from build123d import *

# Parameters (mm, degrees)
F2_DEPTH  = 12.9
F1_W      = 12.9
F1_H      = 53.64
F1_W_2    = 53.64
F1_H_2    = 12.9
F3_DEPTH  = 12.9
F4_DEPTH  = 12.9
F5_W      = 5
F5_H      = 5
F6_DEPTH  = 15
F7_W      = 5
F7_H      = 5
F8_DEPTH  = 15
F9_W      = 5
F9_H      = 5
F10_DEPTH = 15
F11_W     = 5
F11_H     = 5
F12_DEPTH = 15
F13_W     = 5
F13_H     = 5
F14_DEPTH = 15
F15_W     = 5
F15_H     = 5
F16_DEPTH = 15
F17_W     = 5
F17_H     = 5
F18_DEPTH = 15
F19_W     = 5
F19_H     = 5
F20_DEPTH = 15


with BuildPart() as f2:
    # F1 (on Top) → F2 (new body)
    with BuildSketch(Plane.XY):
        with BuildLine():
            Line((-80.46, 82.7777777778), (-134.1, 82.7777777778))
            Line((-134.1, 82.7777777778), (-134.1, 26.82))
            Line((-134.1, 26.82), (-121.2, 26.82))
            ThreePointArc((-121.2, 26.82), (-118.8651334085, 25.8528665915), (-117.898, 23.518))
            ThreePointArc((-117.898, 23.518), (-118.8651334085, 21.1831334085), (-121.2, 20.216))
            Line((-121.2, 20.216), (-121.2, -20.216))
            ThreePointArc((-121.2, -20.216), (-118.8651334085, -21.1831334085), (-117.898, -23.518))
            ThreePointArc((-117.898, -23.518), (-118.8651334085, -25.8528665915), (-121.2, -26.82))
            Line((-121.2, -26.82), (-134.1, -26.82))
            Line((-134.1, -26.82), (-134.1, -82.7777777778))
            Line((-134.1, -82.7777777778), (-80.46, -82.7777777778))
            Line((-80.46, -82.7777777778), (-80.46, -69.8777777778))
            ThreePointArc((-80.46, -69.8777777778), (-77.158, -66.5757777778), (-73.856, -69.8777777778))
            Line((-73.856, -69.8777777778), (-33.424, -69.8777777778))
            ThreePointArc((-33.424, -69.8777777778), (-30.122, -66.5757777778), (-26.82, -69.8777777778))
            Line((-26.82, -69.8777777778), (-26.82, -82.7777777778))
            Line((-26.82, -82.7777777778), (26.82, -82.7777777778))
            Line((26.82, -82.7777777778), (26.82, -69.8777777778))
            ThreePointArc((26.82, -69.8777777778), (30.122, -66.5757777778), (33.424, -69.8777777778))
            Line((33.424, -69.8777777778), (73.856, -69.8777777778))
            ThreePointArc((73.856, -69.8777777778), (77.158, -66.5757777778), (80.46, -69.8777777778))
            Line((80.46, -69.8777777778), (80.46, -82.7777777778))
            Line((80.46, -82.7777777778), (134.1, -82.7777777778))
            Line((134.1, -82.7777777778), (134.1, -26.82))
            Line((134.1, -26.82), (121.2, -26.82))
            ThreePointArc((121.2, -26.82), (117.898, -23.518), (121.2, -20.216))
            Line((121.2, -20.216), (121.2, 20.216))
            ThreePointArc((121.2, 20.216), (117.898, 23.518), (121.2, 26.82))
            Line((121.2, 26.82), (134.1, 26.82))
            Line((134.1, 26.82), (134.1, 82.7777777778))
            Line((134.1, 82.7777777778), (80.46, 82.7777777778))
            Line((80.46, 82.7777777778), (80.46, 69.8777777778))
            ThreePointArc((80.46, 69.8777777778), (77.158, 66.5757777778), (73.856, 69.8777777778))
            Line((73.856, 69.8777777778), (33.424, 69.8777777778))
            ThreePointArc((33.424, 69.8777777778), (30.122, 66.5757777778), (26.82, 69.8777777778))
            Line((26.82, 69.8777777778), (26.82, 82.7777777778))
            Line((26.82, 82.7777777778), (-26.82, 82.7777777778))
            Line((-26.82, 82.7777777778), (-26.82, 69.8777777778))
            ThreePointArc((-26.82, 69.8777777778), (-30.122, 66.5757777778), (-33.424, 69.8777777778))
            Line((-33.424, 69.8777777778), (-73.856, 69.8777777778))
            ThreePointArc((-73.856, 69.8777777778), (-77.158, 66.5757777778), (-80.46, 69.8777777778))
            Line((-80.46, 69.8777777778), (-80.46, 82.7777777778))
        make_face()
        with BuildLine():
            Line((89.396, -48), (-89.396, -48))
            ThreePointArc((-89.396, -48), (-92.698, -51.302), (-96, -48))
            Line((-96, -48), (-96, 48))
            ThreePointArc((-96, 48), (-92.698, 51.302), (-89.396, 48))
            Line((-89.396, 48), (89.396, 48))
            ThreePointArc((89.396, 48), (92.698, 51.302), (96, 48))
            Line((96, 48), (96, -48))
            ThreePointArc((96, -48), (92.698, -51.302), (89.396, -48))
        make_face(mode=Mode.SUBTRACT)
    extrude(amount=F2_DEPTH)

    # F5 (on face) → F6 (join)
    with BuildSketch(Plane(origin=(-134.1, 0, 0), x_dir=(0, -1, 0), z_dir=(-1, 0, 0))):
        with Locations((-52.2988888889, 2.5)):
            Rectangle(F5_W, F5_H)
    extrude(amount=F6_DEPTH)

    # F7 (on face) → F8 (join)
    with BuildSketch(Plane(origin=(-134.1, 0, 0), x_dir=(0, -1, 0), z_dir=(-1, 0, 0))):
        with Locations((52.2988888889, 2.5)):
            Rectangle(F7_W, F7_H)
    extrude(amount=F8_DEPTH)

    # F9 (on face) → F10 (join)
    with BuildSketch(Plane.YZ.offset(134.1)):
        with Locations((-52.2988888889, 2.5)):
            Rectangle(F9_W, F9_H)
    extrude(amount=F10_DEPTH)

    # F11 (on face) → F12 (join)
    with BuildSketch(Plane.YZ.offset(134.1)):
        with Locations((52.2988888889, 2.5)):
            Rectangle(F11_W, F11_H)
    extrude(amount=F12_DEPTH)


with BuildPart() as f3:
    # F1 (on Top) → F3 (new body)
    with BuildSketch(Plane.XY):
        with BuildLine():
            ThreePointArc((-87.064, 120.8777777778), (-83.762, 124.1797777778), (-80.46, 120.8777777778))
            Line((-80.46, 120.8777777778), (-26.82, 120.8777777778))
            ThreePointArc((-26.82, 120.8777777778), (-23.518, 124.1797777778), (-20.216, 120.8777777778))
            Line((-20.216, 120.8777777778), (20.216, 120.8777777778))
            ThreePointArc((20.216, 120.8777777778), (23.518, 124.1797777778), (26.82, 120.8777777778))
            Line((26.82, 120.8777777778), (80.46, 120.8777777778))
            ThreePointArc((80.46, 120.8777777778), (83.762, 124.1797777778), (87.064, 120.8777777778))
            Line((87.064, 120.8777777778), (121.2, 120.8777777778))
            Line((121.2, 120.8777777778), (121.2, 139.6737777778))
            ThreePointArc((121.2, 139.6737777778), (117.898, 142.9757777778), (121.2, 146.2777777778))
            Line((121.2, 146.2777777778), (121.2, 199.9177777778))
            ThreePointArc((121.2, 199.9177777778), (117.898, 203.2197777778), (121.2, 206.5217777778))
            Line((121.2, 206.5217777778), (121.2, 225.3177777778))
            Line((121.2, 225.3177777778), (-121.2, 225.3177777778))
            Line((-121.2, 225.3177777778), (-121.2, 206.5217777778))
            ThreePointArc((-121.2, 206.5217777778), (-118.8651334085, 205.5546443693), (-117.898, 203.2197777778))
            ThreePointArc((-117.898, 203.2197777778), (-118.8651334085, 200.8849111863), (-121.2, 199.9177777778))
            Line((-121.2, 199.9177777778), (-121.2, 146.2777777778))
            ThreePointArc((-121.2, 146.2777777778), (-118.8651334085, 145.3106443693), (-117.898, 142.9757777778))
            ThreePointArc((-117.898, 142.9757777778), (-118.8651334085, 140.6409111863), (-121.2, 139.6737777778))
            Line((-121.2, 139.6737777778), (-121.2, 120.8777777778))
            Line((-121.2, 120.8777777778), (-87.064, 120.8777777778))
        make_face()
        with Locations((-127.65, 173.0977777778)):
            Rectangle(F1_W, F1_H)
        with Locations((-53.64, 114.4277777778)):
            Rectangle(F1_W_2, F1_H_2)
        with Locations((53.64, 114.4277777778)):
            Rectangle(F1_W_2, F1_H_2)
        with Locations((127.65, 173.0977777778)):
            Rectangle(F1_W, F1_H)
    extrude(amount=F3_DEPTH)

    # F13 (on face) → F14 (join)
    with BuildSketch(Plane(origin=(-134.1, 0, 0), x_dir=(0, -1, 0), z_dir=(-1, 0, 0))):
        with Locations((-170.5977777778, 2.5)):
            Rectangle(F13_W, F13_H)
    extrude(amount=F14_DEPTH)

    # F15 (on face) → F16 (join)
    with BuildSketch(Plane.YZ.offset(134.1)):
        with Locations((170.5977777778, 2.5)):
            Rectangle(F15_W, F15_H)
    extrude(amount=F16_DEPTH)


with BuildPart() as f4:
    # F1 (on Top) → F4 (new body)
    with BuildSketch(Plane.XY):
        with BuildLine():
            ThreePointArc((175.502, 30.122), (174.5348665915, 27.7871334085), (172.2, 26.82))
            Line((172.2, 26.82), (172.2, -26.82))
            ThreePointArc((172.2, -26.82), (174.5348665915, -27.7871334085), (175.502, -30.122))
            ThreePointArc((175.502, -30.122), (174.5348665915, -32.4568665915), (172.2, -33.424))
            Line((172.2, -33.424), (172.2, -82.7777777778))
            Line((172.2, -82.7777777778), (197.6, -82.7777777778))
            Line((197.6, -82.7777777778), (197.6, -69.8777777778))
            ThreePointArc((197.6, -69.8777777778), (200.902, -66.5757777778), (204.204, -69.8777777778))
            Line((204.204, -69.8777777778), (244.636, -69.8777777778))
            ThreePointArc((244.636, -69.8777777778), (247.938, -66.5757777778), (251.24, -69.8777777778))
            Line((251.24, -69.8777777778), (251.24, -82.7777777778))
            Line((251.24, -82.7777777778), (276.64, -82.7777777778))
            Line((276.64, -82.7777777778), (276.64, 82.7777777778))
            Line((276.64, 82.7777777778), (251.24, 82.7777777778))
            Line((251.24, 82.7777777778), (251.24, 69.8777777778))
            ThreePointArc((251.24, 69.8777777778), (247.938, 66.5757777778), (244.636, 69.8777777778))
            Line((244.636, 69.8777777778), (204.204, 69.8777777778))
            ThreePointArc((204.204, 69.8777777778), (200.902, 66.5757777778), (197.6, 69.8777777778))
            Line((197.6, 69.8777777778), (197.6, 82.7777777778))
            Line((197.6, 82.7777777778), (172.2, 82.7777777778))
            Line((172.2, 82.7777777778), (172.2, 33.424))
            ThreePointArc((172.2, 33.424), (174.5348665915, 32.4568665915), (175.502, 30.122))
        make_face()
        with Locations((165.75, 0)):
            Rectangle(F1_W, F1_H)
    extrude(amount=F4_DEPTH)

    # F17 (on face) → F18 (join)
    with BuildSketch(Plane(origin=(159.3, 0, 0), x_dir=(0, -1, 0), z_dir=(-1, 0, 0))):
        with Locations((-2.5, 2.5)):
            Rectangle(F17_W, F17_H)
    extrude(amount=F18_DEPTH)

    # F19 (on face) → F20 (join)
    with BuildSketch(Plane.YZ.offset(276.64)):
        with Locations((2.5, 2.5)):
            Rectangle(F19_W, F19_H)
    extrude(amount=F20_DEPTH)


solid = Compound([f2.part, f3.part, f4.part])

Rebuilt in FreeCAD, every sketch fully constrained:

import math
import FreeCAD as App
import Part
import Sketcher

V = App.Vector
Q = App.Units.Quantity


def add_polygon(sketch, points):
    """Adds a closed chain of lines whose ends are joined by coincident constraints."""
    first, n = sketch.GeometryCount, len(points)
    for a, b in zip(points, points[1:] + points[:1]):
        sketch.addGeometry(Part.LineSegment(App.Vector(*a, 0), App.Vector(*b, 0)), False)
    for i in range(n):
        sketch.addConstraint(Sketcher.Constraint("Coincident", first + i, 2, first + (i + 1) % n, 1))

doc = App.newDocument("Part")
params = doc.addObject("Spreadsheet::Sheet", "Params")
for row, (alias, value) in enumerate([
    ("sketch1_height", "96 mm"),
    ("sketch1_width", "12.9 mm"),
    ("sketch1_width2", "53.64 mm"),
    ("pad1_length", "12.9 mm"),
    ("sketch2_width", "5 mm"),
    ("pad2_length", "15 mm"),
    ("sketch3_width", "5 mm"),
    ("pad3_length", "15 mm"),
    ("sketch4_width", "5 mm"),
    ("pad4_length", "15 mm"),
    ("sketch5_width", "5 mm"),
    ("pad5_length", "15 mm"),
    ("sketch6_width", "12.9 mm"),
    ("sketch6_width2", "242.4 mm"),
    ("sketch6_width3", "53.64 mm"),
    ("pad6_length", "12.9 mm"),
    ("sketch7_width", "5 mm"),
    ("pad7_length", "15 mm"),
    ("sketch8_width", "5 mm"),
    ("pad8_length", "15 mm"),
    ("sketch9_width", "12.9 mm"),
    ("sketch9_width2", "25.4 mm"),
    ("sketch9_height", "53.64 mm"),
    ("pad9_length", "12.9 mm"),
    ("sketch10_width", "5 mm"),
    ("pad10_length", "15 mm"),
    ("sketch11_width", "5 mm"),
    ("pad11_length", "15 mm"),
], start=1):
    params.set(f"A{row}", alias)
    params.set(f"B{row}", "=" + value)
    params.setAlias(f"B{row}", alias)

body = doc.addObject("PartDesign::Body", "Body")

sketch1 = doc.addObject("Sketcher::SketchObject", "Sketch")
body.addObject(sketch1)
sketch1.AttachmentSupport = (doc.XY_Plane, [""])
sketch1.MapMode = "FlatFace"
sketch1.addGeometry([
    Part.LineSegment(V(-80.46, 82.777778, 0), V(-134.1, 82.777778, 0)),
    Part.LineSegment(V(-134.1, 82.777778, 0), V(-134.1, 26.82, 0)),
    Part.LineSegment(V(-134.1, 26.82, 0), V(-121.2, 26.82, 0)),
    Part.ArcOfCircle(Part.Circle(V(-121.2, 23.518, 0), V(0, 0, 1), 3.302), math.radians(0), math.radians(90)),
    Part.ArcOfCircle(Part.Circle(V(-121.2, 23.518, 0), V(0, 0, 1), 3.302), math.radians(-90), math.radians(0)),
    Part.LineSegment(V(-121.2, 20.216, 0), V(-121.2, -20.216, 0)),
    Part.ArcOfCircle(Part.Circle(V(-121.2, -23.518, 0), V(0, 0, 1), 3.302), math.radians(0), math.radians(90)),
    Part.ArcOfCircle(Part.Circle(V(-121.2, -23.518, 0), V(0, 0, 1), 3.302), math.radians(-90), math.radians(0)),
    Part.LineSegment(V(-121.2, -26.82, 0), V(-134.1, -26.82, 0)),
    Part.LineSegment(V(-134.1, -26.82, 0), V(-134.1, -82.777778, 0)),
    Part.LineSegment(V(-134.1, -82.777778, 0), V(-80.46, -82.777778, 0)),
    Part.LineSegment(V(-80.46, -82.777778, 0), V(-80.46, -69.877778, 0)),
    Part.ArcOfCircle(Part.Circle(V(-77.158, -69.877778, 0), V(0, 0, 1), 3.302), math.radians(0), math.radians(180)),
    Part.LineSegment(V(-73.856, -69.877778, 0), V(-33.424, -69.877778, 0)),
    Part.ArcOfCircle(Part.Circle(V(-30.122, -69.877778, 0), V(0, 0, 1), 3.302), math.radians(0), math.radians(180)),
    Part.LineSegment(V(-26.82, -69.877778, 0), V(-26.82, -82.777778, 0)),
    Part.LineSegment(V(-26.82, -82.777778, 0), V(26.82, -82.777778, 0)),
    Part.LineSegment(V(26.82, -82.777778, 0), V(26.82, -69.877778, 0)),
    Part.ArcOfCircle(Part.Circle(V(30.122, -69.877778, 0), V(0, 0, 1), 3.302), math.radians(0), math.radians(180)),
    Part.LineSegment(V(33.424, -69.877778, 0), V(73.856, -69.877778, 0)),
    Part.ArcOfCircle(Part.Circle(V(77.158, -69.877778, 0), V(0, 0, 1), 3.302), math.radians(0), math.radians(180)),
    Part.LineSegment(V(80.46, -69.877778, 0), V(80.46, -82.777778, 0)),
    Part.LineSegment(V(80.46, -82.777778, 0), V(134.1, -82.777778, 0)),
    Part.LineSegment(V(134.1, -82.777778, 0), V(134.1, -26.82, 0)),
    Part.LineSegment(V(134.1, -26.82, 0), V(121.2, -26.82, 0)),
    Part.ArcOfCircle(Part.Circle(V(121.2, -23.518, 0), V(0, 0, 1), 3.302), math.radians(90), math.radians(270)),
    Part.LineSegment(V(121.2, -20.216, 0), V(121.2, 20.216, 0)),
    Part.ArcOfCircle(Part.Circle(V(121.2, 23.518, 0), V(0, 0, 1), 3.302), math.radians(90), math.radians(270)),
    Part.LineSegment(V(121.2, 26.82, 0), V(134.1, 26.82, 0)),
    Part.LineSegment(V(134.1, 26.82, 0), V(134.1, 82.777778, 0)),
    Part.LineSegment(V(134.1, 82.777778, 0), V(80.46, 82.777778, 0)),
    Part.LineSegment(V(80.46, 82.777778, 0), V(80.46, 69.877778, 0)),
    Part.ArcOfCircle(Part.Circle(V(77.158, 69.877778, 0), V(0, 0, 1), 3.302), math.radians(180), math.radians(360)),
    Part.LineSegment(V(73.856, 69.877778, 0), V(33.424, 69.877778, 0)),
    Part.ArcOfCircle(Part.Circle(V(30.122, 69.877778, 0), V(0, 0, 1), 3.302), math.radians(180), math.radians(360)),
    Part.LineSegment(V(26.82, 69.877778, 0), V(26.82, 82.777778, 0)),
    Part.LineSegment(V(26.82, 82.777778, 0), V(-26.82, 82.777778, 0)),
    Part.LineSegment(V(-26.82, 82.777778, 0), V(-26.82, 69.877778, 0)),
    Part.ArcOfCircle(Part.Circle(V(-30.122, 69.877778, 0), V(0, 0, 1), 3.302), math.radians(180), math.radians(360)),
    Part.LineSegment(V(-33.424, 69.877778, 0), V(-73.856, 69.877778, 0)),
    Part.ArcOfCircle(Part.Circle(V(-77.158, 69.877778, 0), V(0, 0, 1), 3.302), math.radians(180), math.radians(360)),
    Part.LineSegment(V(-80.46, 69.877778, 0), V(-80.46, 82.777778, 0)),
    Part.ArcOfCircle(Part.Circle(V(92.698, -48, 0), V(0, 0, 1), 3.302), math.radians(180), math.radians(360)),
    Part.LineSegment(V(89.396, -48, 0), V(-89.396, -48, 0)),
    Part.ArcOfCircle(Part.Circle(V(-92.698, -48, 0), V(0, 0, 1), 3.302), math.radians(180), math.radians(360)),
    Part.LineSegment(V(-96, -48, 0), V(-96, 48, 0)),
    Part.ArcOfCircle(Part.Circle(V(-92.698, 48, 0), V(0, 0, 1), 3.302), math.radians(0), math.radians(180)),
    Part.LineSegment(V(-89.396, 48, 0), V(89.396, 48, 0)),
    Part.ArcOfCircle(Part.Circle(V(92.698, 48, 0), V(0, 0, 1), 3.302), math.radians(0), math.radians(180)),
    Part.LineSegment(V(96, 48, 0), V(96, -48, 0)),
], False)
sketch1.addConstraint([
    Sketcher.Constraint("Coincident", 0, 2, 1, 1),
    Sketcher.Constraint("Coincident", 1, 2, 2, 1),
    Sketcher.Constraint("Tangent", 2, 2, 3, 2),
    Sketcher.Constraint("Tangent", 3, 1, 4, 2),
    Sketcher.Constraint("Coincident", 4, 1, 5, 1),
    Sketcher.Constraint("Coincident", 5, 2, 6, 2),
    Sketcher.Constraint("Tangent", 6, 1, 7, 2),
    Sketcher.Constraint("Tangent", 7, 1, 8, 1),
    Sketcher.Constraint("Coincident", 8, 2, 9, 1),
    Sketcher.Constraint("Coincident", 9, 2, 10, 1),
    Sketcher.Constraint("Coincident", 10, 2, 11, 1),
    Sketcher.Constraint("Tangent", 11, 2, 12, 2),
    Sketcher.Constraint("Coincident", 12, 1, 13, 1),
    Sketcher.Constraint("Coincident", 13, 2, 14, 2),
    Sketcher.Constraint("Tangent", 14, 1, 15, 1),
    Sketcher.Constraint("Coincident", 15, 2, 16, 1),
    Sketcher.Constraint("Coincident", 16, 2, 17, 1),
    Sketcher.Constraint("Tangent", 17, 2, 18, 2),
    Sketcher.Constraint("Coincident", 18, 1, 19, 1),
    Sketcher.Constraint("Coincident", 19, 2, 20, 2),
    Sketcher.Constraint("Tangent", 20, 1, 21, 1),
    Sketcher.Constraint("Coincident", 21, 2, 22, 1),
    Sketcher.Constraint("Coincident", 22, 2, 23, 1),
    Sketcher.Constraint("Coincident", 23, 2, 24, 1),
    Sketcher.Constraint("Tangent", 24, 2, 25, 2),
    Sketcher.Constraint("Coincident", 25, 1, 26, 1),
    Sketcher.Constraint("Coincident", 26, 2, 27, 2),
    Sketcher.Constraint("Tangent", 27, 1, 28, 1),
    Sketcher.Constraint("Coincident", 28, 2, 29, 1),
    Sketcher.Constraint("Coincident", 29, 2, 30, 1),
    Sketcher.Constraint("Coincident", 30, 2, 31, 1),
    Sketcher.Constraint("Tangent", 31, 2, 32, 2),
    Sketcher.Constraint("Coincident", 32, 1, 33, 1),
    Sketcher.Constraint("Coincident", 33, 2, 34, 2),
    Sketcher.Constraint("Tangent", 34, 1, 35, 1),
    Sketcher.Constraint("Coincident", 35, 2, 36, 1),
    Sketcher.Constraint("Coincident", 36, 2, 37, 1),
    Sketcher.Constraint("Tangent", 37, 2, 38, 2),
    Sketcher.Constraint("Coincident", 38, 1, 39, 1),
    Sketcher.Constraint("Coincident", 39, 2, 40, 2),
    Sketcher.Constraint("Tangent", 40, 1, 41, 1),
    Sketcher.Constraint("Coincident", 41, 2, 0, 1),
    Sketcher.Constraint("Coincident", 42, 1, 43, 1),
    Sketcher.Constraint("Coincident", 43, 2, 44, 2),
    Sketcher.Constraint("Tangent", 44, 1, 45, 1),
    Sketcher.Constraint("Tangent", 45, 2, 46, 2),
    Sketcher.Constraint("Coincident", 46, 1, 47, 1),
    Sketcher.Constraint("Coincident", 47, 2, 48, 2),
    Sketcher.Constraint("Tangent", 48, 1, 49, 1),
    Sketcher.Constraint("Tangent", 49, 2, 42, 2),
    Sketcher.Constraint("Horizontal", 0),
    Sketcher.Constraint("Vertical", 1),
    Sketcher.Constraint("Horizontal", 2),
    Sketcher.Constraint("Vertical", 5),
    Sketcher.Constraint("Horizontal", 8),
    Sketcher.Constraint("Vertical", 9),
    Sketcher.Constraint("Horizontal", 10),
    Sketcher.Constraint("Vertical", 11),
    Sketcher.Constraint("Horizontal", 13),
    Sketcher.Constraint("Vertical", 15),
    Sketcher.Constraint("Horizontal", 16),
    Sketcher.Constraint("Vertical", 17),
    Sketcher.Constraint("Horizontal", 19),
    Sketcher.Constraint("Vertical", 21),
    Sketcher.Constraint("Horizontal", 22),
    Sketcher.Constraint("Vertical", 23),
    Sketcher.Constraint("Horizontal", 24),
    Sketcher.Constraint("Vertical", 26),
    Sketcher.Constraint("Horizontal", 28),
    Sketcher.Constraint("Vertical", 29),
    Sketcher.Constraint("Horizontal", 30),
    Sketcher.Constraint("Vertical", 31),
    Sketcher.Constraint("Horizontal", 33),
    Sketcher.Constraint("Vertical", 35),
    Sketcher.Constraint("Horizontal", 36),
    Sketcher.Constraint("Vertical", 37),
    Sketcher.Constraint("Horizontal", 39),
    Sketcher.Constraint("Vertical", 41),
    Sketcher.Constraint("Horizontal", 43),
    Sketcher.Constraint("Vertical", 45),
    Sketcher.Constraint("Horizontal", 47),
    Sketcher.Constraint("Vertical", 49),
    Sketcher.Constraint("Equal", 3, 4),
    Sketcher.Constraint("Equal", 4, 6),
    Sketcher.Constraint("Equal", 6, 7),
    Sketcher.Constraint("Equal", 7, 12),
    Sketcher.Constraint("Equal", 12, 14),
    Sketcher.Constraint("Equal", 14, 18),
    Sketcher.Constraint("Equal", 18, 20),
    Sketcher.Constraint("Equal", 20, 25),
    Sketcher.Constraint("Equal", 25, 27),
    Sketcher.Constraint("Equal", 27, 32),
    Sketcher.Constraint("Equal", 32, 34),
    Sketcher.Constraint("Equal", 34, 38),
    Sketcher.Constraint("Equal", 38, 40),
    Sketcher.Constraint("Equal", 40, 42),
    Sketcher.Constraint("Equal", 42, 44),
    Sketcher.Constraint("Equal", 44, 46),
    Sketcher.Constraint("Equal", 46, 48),
    Sketcher.Constraint("Symmetric", 3, 3, 25, 3, -1, 1),
    Sketcher.Constraint("Symmetric", 6, 3, 27, 3, -1, 1),
    Sketcher.Constraint("Symmetric", 12, 3, 32, 3, -1, 1),
    Sketcher.Constraint("Symmetric", 14, 3, 34, 3, -1, 1),
    Sketcher.Constraint("Symmetric", 18, 3, 38, 3, -1, 1),
    Sketcher.Constraint("Symmetric", 20, 3, 40, 3, -1, 1),
    Sketcher.Constraint("Symmetric", 42, 3, 46, 3, -1, 1),
    Sketcher.Constraint("Symmetric", 0, 2, 22, 2, -1, 1),
    Sketcher.Constraint("Symmetric", 9, 2, 29, 2, -1, 1),
    Sketcher.Constraint("Symmetric", 14, 3, 18, 3, -2),
    Sketcher.Constraint("Symmetric", 12, 3, 20, 3, -2),
    Sketcher.Constraint("Symmetric", 6, 3, 25, 3, -2),
    Sketcher.Constraint("Symmetric", 9, 2, 22, 2, -2),
    Sketcher.Constraint("Horizontal", 12, 3, 14, 3),
    Sketcher.Constraint("Horizontal", 42, 3, 44, 3),
    Sketcher.Constraint("Horizontal", 46, 3, 48, 3),
    Sketcher.Constraint("Horizontal", 27, 3, 3, 1),
    Sketcher.Constraint("Horizontal", 25, 3, 6, 1),
    Sketcher.Constraint("Horizontal", 11, 2, 12, 1),
    Sketcher.Constraint("Horizontal", 10, 2, 15, 2),
    Sketcher.Constraint("Horizontal", 17, 2, 18, 1),
    Sketcher.Constraint("Horizontal", 31, 2, 32, 1),
    Sketcher.Constraint("Horizontal", 30, 2, 35, 2),
    Sketcher.Constraint("Horizontal", 37, 2, 38, 1),
    Sketcher.Constraint("Horizontal", 44, 3, 42, 1),
    Sketcher.Constraint("Horizontal", 45, 2, 46, 1),
    Sketcher.Constraint("Vertical", 2, 2, 4, 1),
    Sketcher.Constraint("Vertical", 24, 2, 25, 1),
    Sketcher.Constraint("Equal", 10, 16),
    Sketcher.Constraint("Equal", 39, 5),
    Sketcher.Constraint("Equal", 28, 11),
    Sketcher.Constraint("DistanceY", 45, 1, 45, 2, Q("96 mm")),
    Sketcher.Constraint("DistanceX", 2, 1, 2, 2, Q("12.9 mm")),
    Sketcher.Constraint("DistanceX", 44, 1, -1, 1, Q("96 mm")),
    Sketcher.Constraint("Radius", 3, Q("3.302 mm")),
    Sketcher.Constraint("DistanceX", 0, 2, 0, 1, Q("53.64 mm")),
    Sketcher.Constraint("DistanceX", 3, 3, -1, 1, Q("121.2 mm")),
    Sketcher.Constraint("DistanceY", 1, 2, 1, 1, Q("55.957778 mm")),
])
sketch1.setExpression("Constraints[130]", "Params.sketch1_height")
sketch1.setExpression("Constraints[131]", "Params.sketch1_width")
sketch1.setExpression("Constraints[134]", "Params.sketch1_width2")
pad1 = doc.addObject("PartDesign::Pad", "Pad")
body.addObject(pad1)
pad1.Profile = sketch1
pad1.setExpression("Length", "Params.pad1_length")

sketch2 = doc.addObject("Sketcher::SketchObject", "Sketch001")
body.addObject(sketch2)
sketch2.AttachmentSupport = (doc.YZ_Plane, [""])
sketch2.MapMode = "FlatFace"
sketch2.AttachmentOffset = App.Placement(V(0, 0, -134.1), App.Rotation())
add_polygon(sketch2, [(54.798889, 5), (54.798889, 0), (49.798889, 0), (49.798889, 5)])
sketch2.addConstraint([
    Sketcher.Constraint("Vertical", 0),
    Sketcher.Constraint("Horizontal", 1),
    Sketcher.Constraint("Vertical", 2),
    Sketcher.Constraint("Horizontal", 3),
    Sketcher.Constraint("PointOnObject", 0, 2, -1),
    Sketcher.Constraint("Equal", 3, 0),
    Sketcher.Constraint("DistanceX", 1, 2, 1, 1, Q("5 mm")),
    Sketcher.Constraint("DistanceX", -1, 1, 0, 2, Q("54.798889 mm")),
])
sketch2.setExpression("Constraints[10]", "Params.sketch2_width")
pad2 = doc.addObject("PartDesign::Pad", "Pad001")
body.addObject(pad2)
pad2.Profile = sketch2
pad2.setExpression("Length", "Params.pad2_length")
pad2.Reversed = True

sketch3 = doc.addObject("Sketcher::SketchObject", "Sketch002")
body.addObject(sketch3)
sketch3.AttachmentSupport = (doc.YZ_Plane, [""])
sketch3.MapMode = "FlatFace"
sketch3.AttachmentOffset = App.Placement(V(0, 0, -134.1), App.Rotation())
add_polygon(sketch3, [(-49.798889, 5), (-49.798889, 0), (-54.798889, 0), (-54.798889, 5)])
sketch3.addConstraint([
    Sketcher.Constraint("Vertical", 0),
    Sketcher.Constraint("Horizontal", 1),
    Sketcher.Constraint("Vertical", 2),
    Sketcher.Constraint("Horizontal", 3),
    Sketcher.Constraint("PointOnObject", 0, 2, -1),
    Sketcher.Constraint("Equal", 3, 0),
    Sketcher.Constraint("DistanceX", 1, 2, 1, 1, Q("5 mm")),
    Sketcher.Constraint("DistanceX", 0, 2, -1, 1, Q("49.798889 mm")),
])
sketch3.setExpression("Constraints[10]", "Params.sketch3_width")
pad3 = doc.addObject("PartDesign::Pad", "Pad002")
body.addObject(pad3)
pad3.Profile = sketch3
pad3.setExpression("Length", "Params.pad3_length")
pad3.Reversed = True

sketch4 = doc.addObject("Sketcher::SketchObject", "Sketch003")
body.addObject(sketch4)
sketch4.AttachmentSupport = (doc.YZ_Plane, [""])
sketch4.MapMode = "FlatFace"
sketch4.AttachmentOffset = App.Placement(V(0, 0, 134.1), App.Rotation())
add_polygon(sketch4, [(-54.798889, 5), (-54.798889, 0), (-49.798889, 0), (-49.798889, 5)])
sketch4.addConstraint([
    Sketcher.Constraint("Vertical", 0),
    Sketcher.Constraint("Horizontal", 1),
    Sketcher.Constraint("Vertical", 2),
    Sketcher.Constraint("Horizontal", 3),
    Sketcher.Constraint("PointOnObject", 0, 2, -1),
    Sketcher.Constraint("Equal", 3, 0),
    Sketcher.Constraint("DistanceX", 1, 1, 1, 2, Q("5 mm")),
    Sketcher.Constraint("DistanceX", 0, 2, -1, 1, Q("54.798889 mm")),
])
sketch4.setExpression("Constraints[10]", "Params.sketch4_width")
pad4 = doc.addObject("PartDesign::Pad", "Pad003")
body.addObject(pad4)
pad4.Profile = sketch4
pad4.setExpression("Length", "Params.pad4_length")

sketch5 = doc.addObject("Sketcher::SketchObject", "Sketch004")
body.addObject(sketch5)
sketch5.AttachmentSupport = (doc.YZ_Plane, [""])
sketch5.MapMode = "FlatFace"
sketch5.AttachmentOffset = App.Placement(V(0, 0, 134.1), App.Rotation())
add_polygon(sketch5, [(49.798889, 5), (49.798889, 0), (54.798889, 0), (54.798889, 5)])
sketch5.addConstraint([
    Sketcher.Constraint("Vertical", 0),
    Sketcher.Constraint("Horizontal", 1),
    Sketcher.Constraint("Vertical", 2),
    Sketcher.Constraint("Horizontal", 3),
    Sketcher.Constraint("PointOnObject", 0, 2, -1),
    Sketcher.Constraint("Equal", 3, 0),
    Sketcher.Constraint("DistanceX", 1, 1, 1, 2, Q("5 mm")),
    Sketcher.Constraint("DistanceX", -1, 1, 0, 2, Q("49.798889 mm")),
])
sketch5.setExpression("Constraints[10]", "Params.sketch5_width")
pad5 = doc.addObject("PartDesign::Pad", "Pad004")
body.addObject(pad5)
pad5.Profile = sketch5
pad5.setExpression("Length", "Params.pad5_length")
body2 = doc.addObject("PartDesign::Body", "Body001")

sketch6 = doc.addObject("Sketcher::SketchObject", "Sketch005")
body2.addObject(sketch6)
sketch6.AttachmentSupport = (doc.getObject("XY_Plane001"), [""])
sketch6.MapMode = "FlatFace"
sketch6.addGeometry([
    Part.ArcOfCircle(Part.Circle(V(-83.762, 120.877778, 0), V(0, 0, 1), 3.302), math.radians(0), math.radians(180)),
    Part.LineSegment(V(-80.46, 120.877778, 0), V(-80.46, 107.977778, 0)),
    Part.LineSegment(V(-80.46, 107.977778, 0), V(-26.82, 107.977778, 0)),
    Part.LineSegment(V(-26.82, 107.977778, 0), V(-26.82, 120.877778, 0)),
    Part.ArcOfCircle(Part.Circle(V(-23.518, 120.877778, 0), V(0, 0, 1), 3.302), math.radians(0), math.radians(180)),
    Part.LineSegment(V(-20.216, 120.877778, 0), V(20.216, 120.877778, 0)),
    Part.ArcOfCircle(Part.Circle(V(23.518, 120.877778, 0), V(0, 0, 1), 3.302), math.radians(0), math.radians(180)),
    Part.LineSegment(V(26.82, 120.877778, 0), V(26.82, 107.977778, 0)),
    Part.LineSegment(V(26.82, 107.977778, 0), V(80.46, 107.977778, 0)),
    Part.LineSegment(V(80.46, 107.977778, 0), V(80.46, 120.877778, 0)),
    Part.ArcOfCircle(Part.Circle(V(83.762, 120.877778, 0), V(0, 0, 1), 3.302), math.radians(0), math.radians(180)),
    Part.LineSegment(V(87.064, 120.877778, 0), V(121.2, 120.877778, 0)),
    Part.LineSegment(V(121.2, 120.877778, 0), V(121.2, 139.673778, 0)),
    Part.ArcOfCircle(Part.Circle(V(121.2, 142.975778, 0), V(0, 0, 1), 3.302), math.radians(90), math.radians(270)),
    Part.LineSegment(V(121.2, 146.277778, 0), V(134.1, 146.277778, 0)),
    Part.LineSegment(V(134.1, 146.277778, 0), V(134.1, 199.917778, 0)),
    Part.LineSegment(V(134.1, 199.917778, 0), V(121.2, 199.917778, 0)),
    Part.ArcOfCircle(Part.Circle(V(121.2, 203.219778, 0), V(0, 0, 1), 3.302), math.radians(90), math.radians(270)),
    Part.LineSegment(V(121.2, 206.521778, 0), V(121.2, 225.317778, 0)),
    Part.LineSegment(V(121.2, 225.317778, 0), V(-121.2, 225.317778, 0)),
    Part.LineSegment(V(-121.2, 225.317778, 0), V(-121.2, 206.521778, 0)),
    Part.ArcOfCircle(Part.Circle(V(-121.2, 203.219778, 0), V(0, 0, 1), 3.302), math.radians(0), math.radians(90)),
    Part.ArcOfCircle(Part.Circle(V(-121.2, 203.219778, 0), V(0, 0, 1), 3.302), math.radians(-90), math.radians(0)),
    Part.LineSegment(V(-121.2, 199.917778, 0), V(-134.1, 199.917778, 0)),
    Part.LineSegment(V(-134.1, 199.917778, 0), V(-134.1, 146.277778, 0)),
    Part.LineSegment(V(-134.1, 146.277778, 0), V(-121.2, 146.277778, 0)),
    Part.ArcOfCircle(Part.Circle(V(-121.2, 142.975778, 0), V(0, 0, 1), 3.302), math.radians(0), math.radians(90)),
    Part.ArcOfCircle(Part.Circle(V(-121.2, 142.975778, 0), V(0, 0, 1), 3.302), math.radians(-90), math.radians(0)),
    Part.LineSegment(V(-121.2, 139.673778, 0), V(-121.2, 120.877778, 0)),
    Part.LineSegment(V(-121.2, 120.877778, 0), V(-87.064, 120.877778, 0)),
], False)
sketch6.addConstraint([
    Sketcher.Constraint("Tangent", 0, 1, 1, 1),
    Sketcher.Constraint("Coincident", 1, 2, 2, 1),
    Sketcher.Constraint("Coincident", 2, 2, 3, 1),
    Sketcher.Constraint("Tangent", 3, 2, 4, 2),
    Sketcher.Constraint("Coincident", 4, 1, 5, 1),
    Sketcher.Constraint("Coincident", 5, 2, 6, 2),
    Sketcher.Constraint("Tangent", 6, 1, 7, 1),
    Sketcher.Constraint("Coincident", 7, 2, 8, 1),
    Sketcher.Constraint("Coincident", 8, 2, 9, 1),
    Sketcher.Constraint("Tangent", 9, 2, 10, 2),
    Sketcher.Constraint("Coincident", 10, 1, 11, 1),
    Sketcher.Constraint("Coincident", 11, 2, 12, 1),
    Sketcher.Constraint("Coincident", 12, 2, 13, 2),
    Sketcher.Constraint("Tangent", 13, 1, 14, 1),
    Sketcher.Constraint("Coincident", 14, 2, 15, 1),
    Sketcher.Constraint("Coincident", 15, 2, 16, 1),
    Sketcher.Constraint("Tangent", 16, 2, 17, 2),
    Sketcher.Constraint("Coincident", 17, 1, 18, 1),
    Sketcher.Constraint("Coincident", 18, 2, 19, 1),
    Sketcher.Constraint("Coincident", 19, 2, 20, 1),
    Sketcher.Constraint("Coincident", 20, 2, 21, 2),
    Sketcher.Constraint("Tangent", 21, 1, 22, 2),
    Sketcher.Constraint("Tangent", 22, 1, 23, 1),
    Sketcher.Constraint("Coincident", 23, 2, 24, 1),
    Sketcher.Constraint("Coincident", 24, 2, 25, 1),
    Sketcher.Constraint("Tangent", 25, 2, 26, 2),
    Sketcher.Constraint("Tangent", 26, 1, 27, 2),
    Sketcher.Constraint("Coincident", 27, 1, 28, 1),
    Sketcher.Constraint("Coincident", 28, 2, 29, 1),
    Sketcher.Constraint("Coincident", 29, 2, 0, 2),
    Sketcher.Constraint("Vertical", 1),
    Sketcher.Constraint("Horizontal", 2),
    Sketcher.Constraint("Vertical", 3),
    Sketcher.Constraint("Horizontal", 5),
    Sketcher.Constraint("Vertical", 7),
    Sketcher.Constraint("Horizontal", 8),
    Sketcher.Constraint("Vertical", 9),
    Sketcher.Constraint("Horizontal", 11),
    Sketcher.Constraint("Vertical", 12),
    Sketcher.Constraint("Horizontal", 14),
    Sketcher.Constraint("Vertical", 15),
    Sketcher.Constraint("Horizontal", 16),
    Sketcher.Constraint("Vertical", 18),
    Sketcher.Constraint("Horizontal", 19),
    Sketcher.Constraint("Vertical", 20),
    Sketcher.Constraint("Horizontal", 23),
    Sketcher.Constraint("Vertical", 24),
    Sketcher.Constraint("Horizontal", 25),
    Sketcher.Constraint("Vertical", 28),
    Sketcher.Constraint("Horizontal", 29),
    Sketcher.Constraint("Equal", 0, 4),
    Sketcher.Constraint("Equal", 4, 6),
    Sketcher.Constraint("Equal", 6, 10),
    Sketcher.Constraint("Equal", 10, 13),
    Sketcher.Constraint("Equal", 13, 17),
    Sketcher.Constraint("Equal", 17, 21),
    Sketcher.Constraint("Equal", 21, 22),
    Sketcher.Constraint("Equal", 22, 26),
    Sketcher.Constraint("Equal", 26, 27),
    Sketcher.Constraint("Symmetric", 4, 3, 6, 3, -2),
    Sketcher.Constraint("Symmetric", 0, 3, 10, 3, -2),
    Sketcher.Constraint("Symmetric", 17, 3, 21, 3, -2),
    Sketcher.Constraint("Symmetric", 13, 3, 26, 3, -2),
    Sketcher.Constraint("Symmetric", 11, 2, 28, 2, -2),
    Sketcher.Constraint("Horizontal", 0, 3, 4, 3),
    Sketcher.Constraint("Horizontal", 3, 2, 4, 1),
    Sketcher.Constraint("Horizontal", 2, 2, 7, 2),
    Sketcher.Constraint("Horizontal", 9, 2, 10, 1),
    Sketcher.Constraint("Horizontal", 22, 3, 21, 1),
    Sketcher.Constraint("Horizontal", 27, 3, 26, 1),
    Sketcher.Constraint("Vertical", 13, 3, 17, 3),
    Sketcher.Constraint("Vertical", 17, 3, 11, 2),
    Sketcher.Constraint("Vertical", 16, 2, 17, 1),
    Sketcher.Constraint("Vertical", 27, 3, 19, 2),
    Sketcher.Constraint("Equal", 16, 23),
    Sketcher.Constraint("Equal", 25, 1),
    Sketcher.Constraint("Equal", 8, 15),
    Sketcher.Constraint("Equal", 12, 18),
    Sketcher.Constraint("DistanceX", 14, 1, 14, 2, Q("12.9 mm")),
    Sketcher.Constraint("DistanceX", 19, 2, 19, 1, Q("242.4 mm")),
    Sketcher.Constraint("Radius", 0, Q("3.302 mm")),
    Sketcher.Constraint("DistanceX", 2, 1, 2, 2, Q("53.64 mm")),
    Sketcher.Constraint("DistanceY", 11, 2, 13, 1, Q("25.4 mm")),
    Sketcher.Constraint("DistanceX", 5, 1, 5, 2, Q("40.432 mm")),
    Sketcher.Constraint("DistanceY", -1, 1, 0, 3, Q("120.877778 mm")),
])
sketch6.setExpression("Constraints[78]", "Params.sketch6_width")
sketch6.setExpression("Constraints[79]", "Params.sketch6_width2")
sketch6.setExpression("Constraints[81]", "Params.sketch6_width3")
pad6 = doc.addObject("PartDesign::Pad", "Pad005")
body2.addObject(pad6)
pad6.Profile = sketch6
pad6.setExpression("Length", "Params.pad6_length")

sketch7 = doc.addObject("Sketcher::SketchObject", "Sketch006")
body2.addObject(sketch7)
sketch7.AttachmentSupport = (doc.getObject("YZ_Plane001"), [""])
sketch7.MapMode = "FlatFace"
sketch7.AttachmentOffset = App.Placement(V(0, 0, -134.1), App.Rotation())
add_polygon(sketch7, [(173.097778, 5), (173.097778, 0), (168.097778, 0), (168.097778, 5)])
sketch7.addConstraint([
    Sketcher.Constraint("Vertical", 0),
    Sketcher.Constraint("Horizontal", 1),
    Sketcher.Constraint("Vertical", 2),
    Sketcher.Constraint("Horizontal", 3),
    Sketcher.Constraint("PointOnObject", 0, 2, -1),
    Sketcher.Constraint("Equal", 3, 0),
    Sketcher.Constraint("DistanceX", 1, 2, 1, 1, Q("5 mm")),
    Sketcher.Constraint("DistanceX", -1, 1, 0, 2, Q("173.097778 mm")),
])
sketch7.setExpression("Constraints[10]", "Params.sketch7_width")
pad7 = doc.addObject("PartDesign::Pad", "Pad006")
body2.addObject(pad7)
pad7.Profile = sketch7
pad7.setExpression("Length", "Params.pad7_length")
pad7.Reversed = True

sketch8 = doc.addObject("Sketcher::SketchObject", "Sketch007")
body2.addObject(sketch8)
sketch8.AttachmentSupport = (doc.getObject("YZ_Plane001"), [""])
sketch8.MapMode = "FlatFace"
sketch8.AttachmentOffset = App.Placement(V(0, 0, 134.1), App.Rotation())
add_polygon(sketch8, [(168.097778, 5), (168.097778, 0), (173.097778, 0), (173.097778, 5)])
sketch8.addConstraint([
    Sketcher.Constraint("Vertical", 0),
    Sketcher.Constraint("Horizontal", 1),
    Sketcher.Constraint("Vertical", 2),
    Sketcher.Constraint("Horizontal", 3),
    Sketcher.Constraint("PointOnObject", 0, 2, -1),
    Sketcher.Constraint("Equal", 3, 0),
    Sketcher.Constraint("DistanceX", 1, 1, 1, 2, Q("5 mm")),
    Sketcher.Constraint("DistanceX", -1, 1, 0, 2, Q("168.097778 mm")),
])
sketch8.setExpression("Constraints[10]", "Params.sketch8_width")
pad8 = doc.addObject("PartDesign::Pad", "Pad007")
body2.addObject(pad8)
pad8.Profile = sketch8
pad8.setExpression("Length", "Params.pad8_length")
body3 = doc.addObject("PartDesign::Body", "Body002")

sketch9 = doc.addObject("Sketcher::SketchObject", "Sketch008")
body3.addObject(sketch9)
sketch9.AttachmentSupport = (doc.getObject("XY_Plane002"), [""])
sketch9.MapMode = "FlatFace"
sketch9.addGeometry([
    Part.ArcOfCircle(Part.Circle(V(172.2, 30.122, 0), V(0, 0, 1), 3.302), math.radians(-90), math.radians(0)),
    Part.LineSegment(V(172.2, 26.82, 0), V(159.3, 26.82, 0)),
    Part.LineSegment(V(159.3, 26.82, 0), V(159.3, -26.82, 0)),
    Part.LineSegment(V(159.3, -26.82, 0), V(172.2, -26.82, 0)),
    Part.ArcOfCircle(Part.Circle(V(172.2, -30.122, 0), V(0, 0, 1), 3.302), math.radians(0), math.radians(90)),
    Part.ArcOfCircle(Part.Circle(V(172.2, -30.122, 0), V(0, 0, 1), 3.302), math.radians(-90), math.radians(0)),
    Part.LineSegment(V(172.2, -33.424, 0), V(172.2, -82.777778, 0)),
    Part.LineSegment(V(172.2, -82.777778, 0), V(197.6, -82.777778, 0)),
    Part.LineSegment(V(197.6, -82.777778, 0), V(197.6, -69.877778, 0)),
    Part.ArcOfCircle(Part.Circle(V(200.902, -69.877778, 0), V(0, 0, 1), 3.302), math.radians(0), math.radians(180)),
    Part.LineSegment(V(204.204, -69.877778, 0), V(244.636, -69.877778, 0)),
    Part.ArcOfCircle(Part.Circle(V(247.938, -69.877778, 0), V(0, 0, 1), 3.302), math.radians(0), math.radians(180)),
    Part.LineSegment(V(251.24, -69.877778, 0), V(251.24, -82.777778, 0)),
    Part.LineSegment(V(251.24, -82.777778, 0), V(276.64, -82.777778, 0)),
    Part.LineSegment(V(276.64, -82.777778, 0), V(276.64, 82.777778, 0)),
    Part.LineSegment(V(276.64, 82.777778, 0), V(251.24, 82.777778, 0)),
    Part.LineSegment(V(251.24, 82.777778, 0), V(251.24, 69.877778, 0)),
    Part.ArcOfCircle(Part.Circle(V(247.938, 69.877778, 0), V(0, 0, 1), 3.302), math.radians(180), math.radians(360)),
    Part.LineSegment(V(244.636, 69.877778, 0), V(204.204, 69.877778, 0)),
    Part.ArcOfCircle(Part.Circle(V(200.902, 69.877778, 0), V(0, 0, 1), 3.302), math.radians(180), math.radians(360)),
    Part.LineSegment(V(197.6, 69.877778, 0), V(197.6, 82.777778, 0)),
    Part.LineSegment(V(197.6, 82.777778, 0), V(172.2, 82.777778, 0)),
    Part.LineSegment(V(172.2, 82.777778, 0), V(172.2, 33.424, 0)),
    Part.ArcOfCircle(Part.Circle(V(172.2, 30.122, 0), V(0, 0, 1), 3.302), math.radians(0), math.radians(90)),
], False)
sketch9.addConstraint([
    Sketcher.Constraint("Tangent", 0, 1, 1, 1),
    Sketcher.Constraint("Coincident", 1, 2, 2, 1),
    Sketcher.Constraint("Coincident", 2, 2, 3, 1),
    Sketcher.Constraint("Tangent", 3, 2, 4, 2),
    Sketcher.Constraint("Tangent", 4, 1, 5, 2),
    Sketcher.Constraint("Coincident", 5, 1, 6, 1),
    Sketcher.Constraint("Coincident", 6, 2, 7, 1),
    Sketcher.Constraint("Coincident", 7, 2, 8, 1),
    Sketcher.Constraint("Tangent", 8, 2, 9, 2),
    Sketcher.Constraint("Coincident", 9, 1, 10, 1),
    Sketcher.Constraint("Coincident", 10, 2, 11, 2),
    Sketcher.Constraint("Tangent", 11, 1, 12, 1),
    Sketcher.Constraint("Coincident", 12, 2, 13, 1),
    Sketcher.Constraint("Coincident", 13, 2, 14, 1),
    Sketcher.Constraint("Coincident", 14, 2, 15, 1),
    Sketcher.Constraint("Coincident", 15, 2, 16, 1),
    Sketcher.Constraint("Tangent", 16, 2, 17, 2),
    Sketcher.Constraint("Coincident", 17, 1, 18, 1),
    Sketcher.Constraint("Coincident", 18, 2, 19, 2),
    Sketcher.Constraint("Tangent", 19, 1, 20, 1),
    Sketcher.Constraint("Coincident", 20, 2, 21, 1),
    Sketcher.Constraint("Coincident", 21, 2, 22, 1),
    Sketcher.Constraint("Coincident", 22, 2, 23, 2),
    Sketcher.Constraint("Tangent", 23, 1, 0, 2),
    Sketcher.Constraint("Horizontal", 1),
    Sketcher.Constraint("Vertical", 2),
    Sketcher.Constraint("Horizontal", 3),
    Sketcher.Constraint("Vertical", 6),
    Sketcher.Constraint("Horizontal", 7),
    Sketcher.Constraint("Vertical", 8),
    Sketcher.Constraint("Horizontal", 10),
    Sketcher.Constraint("Vertical", 12),
    Sketcher.Constraint("Horizontal", 13),
    Sketcher.Constraint("Vertical", 14),
    Sketcher.Constraint("Horizontal", 15),
    Sketcher.Constraint("Vertical", 16),
    Sketcher.Constraint("Horizontal", 18),
    Sketcher.Constraint("Vertical", 20),
    Sketcher.Constraint("Horizontal", 21),
    Sketcher.Constraint("Vertical", 22),
    Sketcher.Constraint("Equal", 0, 4),
    Sketcher.Constraint("Equal", 4, 5),
    Sketcher.Constraint("Equal", 5, 9),
    Sketcher.Constraint("Equal", 9, 11),
    Sketcher.Constraint("Equal", 11, 17),
    Sketcher.Constraint("Equal", 17, 19),
    Sketcher.Constraint("Equal", 19, 23),
    Sketcher.Constraint("Symmetric", 0, 3, 4, 3, -1),
    Sketcher.Constraint("Symmetric", 11, 3, 17, 3, -1),
    Sketcher.Constraint("Symmetric", 9, 3, 19, 3, -1),
    Sketcher.Constraint("Symmetric", 6, 2, 21, 2, -1),
    Sketcher.Constraint("Horizontal", 9, 3, 11, 3),
    Sketcher.Constraint("Horizontal", 5, 3, 4, 1),
    Sketcher.Constraint("Horizontal", 8, 2, 9, 1),
    Sketcher.Constraint("Horizontal", 7, 2, 12, 2),
    Sketcher.Constraint("Horizontal", 16, 2, 17, 1),
    Sketcher.Constraint("Horizontal", 15, 2, 20, 2),
    Sketcher.Constraint("Horizontal", 0, 3, 23, 1),
    Sketcher.Constraint("Vertical", 3, 2, 5, 1),
    Sketcher.Constraint("Equal", 7, 13),
    Sketcher.Constraint("Equal", 3, 8),
    Sketcher.Constraint("DistanceX", 1, 2, 1, 1, Q("12.9 mm")),
    Sketcher.Constraint("DistanceX", 7, 1, 7, 2, Q("25.4 mm")),
    Sketcher.Constraint("Radius", 0, Q("3.302 mm")),
    Sketcher.Constraint("DistanceY", 2, 2, 2, 1, Q("53.64 mm")),
    Sketcher.Constraint("DistanceX", -1, 1, 0, 3, Q("172.2 mm")),
    Sketcher.Constraint("DistanceX", 10, 1, 10, 2, Q("40.432 mm")),
    Sketcher.Constraint("DistanceY", 6, 2, 6, 1, Q("49.353778 mm")),
])
sketch9.setExpression("Constraints[61]", "Params.sketch9_width")
sketch9.setExpression("Constraints[62]", "Params.sketch9_width2")
sketch9.setExpression("Constraints[64]", "Params.sketch9_height")
pad9 = doc.addObject("PartDesign::Pad", "Pad008")
body3.addObject(pad9)
pad9.Profile = sketch9
pad9.setExpression("Length", "Params.pad9_length")

sketch10 = doc.addObject("Sketcher::SketchObject", "Sketch009")
body3.addObject(sketch10)
sketch10.AttachmentSupport = (doc.getObject("YZ_Plane002"), [""])
sketch10.MapMode = "FlatFace"
sketch10.AttachmentOffset = App.Placement(V(0, 0, 159.3), App.Rotation())
add_polygon(sketch10, [(5, 5), (5, 0), (0, 0), (0, 5)])
sketch10.addConstraint([
    Sketcher.Constraint("Vertical", 0),
    Sketcher.Constraint("Horizontal", 1),
    Sketcher.Constraint("Vertical", 2),
    Sketcher.Constraint("Horizontal", 3),
    Sketcher.Constraint("Coincident", 1, 2, -1, 1),
    Sketcher.Constraint("Equal", 3, 0),
    Sketcher.Constraint("DistanceX", 1, 2, 1, 1, Q("5 mm")),
])
sketch10.setExpression("Constraints[10]", "Params.sketch10_width")
pad10 = doc.addObject("PartDesign::Pad", "Pad009")
body3.addObject(pad10)
pad10.Profile = sketch10
pad10.setExpression("Length", "Params.pad10_length")
pad10.Reversed = True

sketch11 = doc.addObject("Sketcher::SketchObject", "Sketch010")
body3.addObject(sketch11)
sketch11.AttachmentSupport = (doc.getObject("YZ_Plane002"), [""])
sketch11.MapMode = "FlatFace"
sketch11.AttachmentOffset = App.Placement(V(0, 0, 276.64), App.Rotation())
add_polygon(sketch11, [(0, 5), (0, 0), (5, 0), (5, 5)])
sketch11.addConstraint([
    Sketcher.Constraint("Vertical", 0),
    Sketcher.Constraint("Horizontal", 1),
    Sketcher.Constraint("Vertical", 2),
    Sketcher.Constraint("Horizontal", 3),
    Sketcher.Constraint("Coincident", 0, 2, -1, 1),
    Sketcher.Constraint("Equal", 3, 0),
    Sketcher.Constraint("DistanceX", 1, 1, 1, 2, Q("5 mm")),
])
sketch11.setExpression("Constraints[10]", "Params.sketch11_width")
pad11 = doc.addObject("PartDesign::Pad", "Pad010")
body3.addObject(pad11)
pad11.Profile = sketch11
pad11.setExpression("Length", "Params.pad11_length")

doc.recompute()
